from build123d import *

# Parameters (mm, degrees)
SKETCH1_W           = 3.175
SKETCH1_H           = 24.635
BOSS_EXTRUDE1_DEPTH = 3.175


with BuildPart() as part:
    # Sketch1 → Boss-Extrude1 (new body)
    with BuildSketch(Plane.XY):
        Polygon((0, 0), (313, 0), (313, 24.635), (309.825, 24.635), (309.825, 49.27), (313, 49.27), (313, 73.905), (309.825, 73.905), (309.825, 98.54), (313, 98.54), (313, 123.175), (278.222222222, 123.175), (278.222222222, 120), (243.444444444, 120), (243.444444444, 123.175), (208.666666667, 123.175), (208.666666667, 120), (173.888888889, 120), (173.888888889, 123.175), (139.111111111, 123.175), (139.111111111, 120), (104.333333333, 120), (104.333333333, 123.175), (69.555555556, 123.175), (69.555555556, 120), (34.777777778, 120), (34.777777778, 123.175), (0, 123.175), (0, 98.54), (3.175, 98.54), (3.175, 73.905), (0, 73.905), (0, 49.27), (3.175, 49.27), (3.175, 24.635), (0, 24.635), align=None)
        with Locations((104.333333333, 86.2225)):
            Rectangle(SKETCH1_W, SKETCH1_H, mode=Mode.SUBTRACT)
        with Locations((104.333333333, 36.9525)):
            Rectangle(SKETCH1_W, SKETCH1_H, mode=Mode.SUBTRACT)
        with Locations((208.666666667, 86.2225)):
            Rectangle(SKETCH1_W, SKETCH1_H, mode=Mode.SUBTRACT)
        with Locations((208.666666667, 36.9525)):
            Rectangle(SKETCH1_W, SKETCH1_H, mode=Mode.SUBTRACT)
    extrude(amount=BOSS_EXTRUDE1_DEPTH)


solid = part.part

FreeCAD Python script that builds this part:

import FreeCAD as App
import Part
import Sketcher

V = App.Vector
Q = App.Units.Quantity

doc = App.newDocument("Part")
params = doc.addObject("Spreadsheet::Sheet", "Params")
for row, (alias, value) in enumerate([
    ("sketch1_width", "313 mm"),
    ("pad1_length", "3.175 mm"),
], start=1):
    params.set(f"A{row}", alias)
    params.set(f"B{row}", "=" + value)
    params.setAlias(f"B{row}", alias)

body = doc.addObject("PartDesign::Body", "Body")

# Sketch on XY plane
sketch1 = body.newObject("Sketcher::SketchObject", "Sketch")
sketch1.AttachmentSupport = (doc.getObject("XY_Plane"), [""])
sketch1.MapMode = "FlatFace"
sketch1.addGeometry(Part.LineSegment(V(0, 0, 0), V(313, 0, 0)), False)
sketch1.addGeometry(Part.LineSegment(V(313, 0, 0), V(313, 24.6, 0)), False)
sketch1.addGeometry(Part.LineSegment(V(313, 24.6, 0), V(309.8, 24.6, 0)), False)
sketch1.addGeometry(Part.LineSegment(V(309.8, 24.6, 0), V(309.8, 49.3, 0)), False)
sketch1.addGeometry(Part.LineSegment(V(309.8, 49.3, 0), V(313, 49.3, 0)), False)
sketch1.addGeometry(Part.LineSegment(V(313, 49.3, 0), V(313, 73.9, 0)), False)
sketch1.addGeometry(Part.LineSegment(V(313, 73.9, 0), V(309.8, 73.9, 0)), False)
sketch1.addGeometry(Part.LineSegment(V(309.8, 73.9, 0), V(309.8, 98.5, 0)), False)
sketch1.addGeometry(Part.LineSegment(V(309.8, 98.5, 0), V(313, 98.5, 0)), False)
sketch1.addGeometry(Part.LineSegment(V(313, 98.5, 0), V(313, 123.2, 0)), False)
sketch1.addGeometry(Part.LineSegment(V(313, 123.2, 0), V(278.2, 123.2, 0)), False)
sketch1.addGeometry(Part.LineSegment(V(278.2, 123.2, 0), V(278.2, 120, 0)), False)
sketch1.addGeometry(Part.LineSegment(V(278.2, 120, 0), V(243.4, 120, 0)), False)
sketch1.addGeometry(Part.LineSegment(V(243.4, 120, 0), V(243.4, 123.2, 0)), False)
sketch1.addGeometry(Part.LineSegment(V(243.4, 123.2, 0), V(208.7, 123.2, 0)), False)
sketch1.addGeometry(Part.LineSegment(V(208.7, 123.2, 0), V(208.7, 120, 0)), False)
sketch1.addGeometry(Part.LineSegment(V(208.7, 120, 0), V(173.9, 120, 0)), False)
sketch1.addGeometry(Part.LineSegment(V(173.9, 120, 0), V(173.9, 123.2, 0)), False)
sketch1.addGeometry(Part.LineSegment(V(173.9, 123.2, 0), V(139.1, 123.2, 0)), False)
sketch1.addGeometry(Part.LineSegment(V(139.1, 123.2, 0), V(139.1, 120, 0)), False)
sketch1.addGeometry(Part.LineSegment(V(139.1, 120, 0), V(104.3, 120, 0)), False)
sketch1.addGeometry(Part.LineSegment(V(104.3, 120, 0), V(104.3, 123.2, 0)), False)
sketch1.addGeometry(Part.LineSegment(V(104.3, 123.2, 0), V(69.6, 123.2, 0)), False)
sketch1.addGeometry(Part.LineSegment(V(69.6, 123.2, 0), V(69.6, 120, 0)), False)
sketch1.addGeometry(Part.LineSegment(V(69.6, 120, 0), V(34.8, 120, 0)), False)
sketch1.addGeometry(Part.LineSegment(V(34.8, 120, 0), V(34.8, 123.2, 0)), False)
sketch1.addGeometry(Part.LineSegment(V(34.8, 123.2, 0), V(0, 123.2, 0)), False)
sketch1.addGeometry(Part.LineSegment(V(0, 123.2, 0), V(0, 98.5, 0)), False)
sketch1.addGeometry(Part.LineSegment(V(0, 98.5, 0), V(3.2, 98.5, 0)), False)
sketch1.addGeometry(Part.LineSegment(V(3.2, 98.5, 0), V(3.2, 73.9, 0)), False)
sketch1.addGeometry(Part.LineSegment(V(3.2, 73.9, 0), V(0, 73.9, 0)), False)
sketch1.addGeometry(Part.LineSegment(V(0, 73.9, 0), V(0, 49.3, 0)), False)
sketch1.addGeometry(Part.LineSegment(V(0, 49.3, 0), V(3.2, 49.3, 0)), False)
sketch1.addGeometry(Part.LineSegment(V(3.2, 49.3, 0), V(3.2, 24.6, 0)), False)
sketch1.addGeometry(Part.LineSegment(V(3.2, 24.6, 0), V(0, 24.6, 0)), False)
sketch1.addGeometry(Part.LineSegment(V(0, 24.6, 0), V(0, 0, 0)), False)
sketch1.addGeometry(Part.LineSegment(V(105.9, 24.6, 0), V(102.7, 24.6, 0)), False)
sketch1.addGeometry(Part.LineSegment(V(102.7, 24.6, 0), V(102.7, 49.3, 0)), False)
sketch1.addGeometry(Part.LineSegment(V(102.7, 49.3, 0), V(105.9, 49.3, 0)), False)
sketch1.addGeometry(Part.LineSegment(V(105.9, 49.3, 0), V(105.9, 24.6, 0)), False)
sketch1.addGeometry(Part.LineSegment(V(210.3, 24.6, 0), V(207.1, 24.6, 0)), False)
sketch1.addGeometry(Part.LineSegment(V(207.1, 24.6, 0), V(207.1, 49.3, 0)), False)
sketch1.addGeometry(Part.LineSegment(V(207.1, 49.3, 0), V(210.3, 49.3, 0)), False)
sketch1.addGeometry(Part.LineSegment(V(210.3, 49.3, 0), V(210.3, 24.6, 0)), False)
sketch1.addGeometry(Part.LineSegment(V(105.9, 73.9, 0), V(102.7, 73.9, 0)), False)
sketch1.addGeometry(Part.LineSegment(V(102.7, 73.9, 0), V(102.7, 98.5, 0)), False)
sketch1.addGeometry(Part.LineSegment(V(102.7, 98.5, 0), V(105.9, 98.5, 0)), False)
sketch1.addGeometry(Part.LineSegment(V(105.9, 98.5, 0), V(105.9, 73.9, 0)), False)
sketch1.addGeometry(Part.LineSegment(V(210.3, 73.9, 0), V(207.1, 73.9, 0)), False)
sketch1.addGeometry(Part.LineSegment(V(207.1, 73.9, 0), V(207.1, 98.5, 0)), False)
sketch1.addGeometry(Part.LineSegment(V(207.1, 98.5, 0), V(210.3, 98.5, 0)), False)
sketch1.addGeometry(Part.LineSegment(V(210.3, 98.5, 0), V(210.3, 73.9, 0)), False)
sketch1.addConstraint(Sketcher.Constraint("Coincident", 0, 2, 1, 1))
sketch1.addConstraint(Sketcher.Constraint("Coincident", 1, 2, 2, 1))
sketch1.addConstraint(Sketcher.Constraint("Coincident", 2, 2, 3, 1))
sketch1.addConstraint(Sketcher.Constraint("Coincident", 3, 2, 4, 1))
sketch1.addConstraint(Sketcher.Constraint("Coincident", 4, 2, 5, 1))
sketch1.addConstraint(Sketcher.Constraint("Coincident", 5, 2, 6, 1))
sketch1.addConstraint(Sketcher.Constraint("Coincident", 6, 2, 7, 1))
sketch1.addConstraint(Sketcher.Constraint("Coincident", 7, 2, 8, 1))
sketch1.addConstraint(Sketcher.Constraint("Coincident", 8, 2, 9, 1))
sketch1.addConstraint(Sketcher.Constraint("Coincident", 9, 2, 10, 1))
sketch1.addConstraint(Sketcher.Constraint("Coincident", 10, 2, 11, 1))
sketch1.addConstraint(Sketcher.Constraint("Coincident", 11, 2, 12, 1))
sketch1.addConstraint(Sketcher.Constraint("Coincident", 12, 2, 13, 1))
sketch1.addConstraint(Sketcher.Constraint("Coincident", 13, 2, 14, 1))
sketch1.addConstraint(Sketcher.Constraint("Coincident", 14, 2, 15, 1))
sketch1.addConstraint(Sketcher.Constraint("Coincident", 15, 2, 16, 1))
sketch1.addConstraint(Sketcher.Constraint("Coincident", 16, 2, 17, 1))
sketch1.addConstraint(Sketcher.Constraint("Coincident", 17, 2, 18, 1))
sketch1.addConstraint(Sketcher.Constraint("Coincident", 18, 2, 19, 1))
sketch1.addConstraint(Sketcher.Constraint("Coincident", 19, 2, 20, 1))
sketch1.addConstraint(Sketcher.Constraint("Coincident", 20, 2, 21, 1))
sketch1.addConstraint(Sketcher.Constraint("Coincident", 21, 2, 22, 1))
sketch1.addConstraint(Sketcher.Constraint("Coincident", 22, 2, 23, 1))
sketch1.addConstraint(Sketcher.Constraint("Coincident", 23, 2, 24, 1))
sketch1.addConstraint(Sketcher.Constraint("Coincident", 24, 2, 25, 1))
sketch1.addConstraint(Sketcher.Constraint("Coincident", 25, 2, 26, 1))
sketch1.addConstraint(Sketcher.Constraint("Coincident", 26, 2, 27, 1))
sketch1.addConstraint(Sketcher.Constraint("Coincident", 27, 2, 28, 1))
sketch1.addConstraint(Sketcher.Constraint("Coincident", 28, 2, 29, 1))
sketch1.addConstraint(Sketcher.Constraint("Coincident", 29, 2, 30, 1))
sketch1.addConstraint(Sketcher.Constraint("Coincident", 30, 2, 31, 1))
sketch1.addConstraint(Sketcher.Constraint("Coincident", 31, 2, 32, 1))
sketch1.addConstraint(Sketcher.Constraint("Coincident", 32, 2, 33, 1))
sketch1.addConstraint(Sketcher.Constraint("Coincident", 33, 2, 34, 1))
sketch1.addConstraint(Sketcher.Constraint("Coincident", 34, 2, 35, 1))
sketch1.addConstraint(Sketcher.Constraint("Coincident", 35, 2, 0, 1))
sketch1.addConstraint(Sketcher.Constraint("Coincident", 36, 2, 37, 1))
sketch1.addConstraint(Sketcher.Constraint("Coincident", 37, 2, 38, 1))
sketch1.addConstraint(Sketcher.Constraint("Coincident", 38, 2, 39, 1))
sketch1.addConstraint(Sketcher.Constraint("Coincident", 39, 2, 36, 1))
sketch1.addConstraint(Sketcher.Constraint("Coincident", 40, 2, 41, 1))
sketch1.addConstraint(Sketcher.Constraint("Coincident", 41, 2, 42, 1))
sketch1.addConstraint(Sketcher.Constraint("Coincident", 42, 2, 43, 1))
sketch1.addConstraint(Sketcher.Constraint("Coincident", 43, 2, 40, 1))
sketch1.addConstraint(Sketcher.Constraint("Coincident", 44, 2, 45, 1))
sketch1.addConstraint(Sketcher.Constraint("Coincident", 45, 2, 46, 1))
sketch1.addConstraint(Sketcher.Constraint("Coincident", 46, 2, 47, 1))
sketch1.addConstraint(Sketcher.Constraint("Coincident", 47, 2, 44, 1))
sketch1.addConstraint(Sketcher.Constraint("Coincident", 48, 2, 49, 1))
sketch1.addConstraint(Sketcher.Constraint("Coincident", 49, 2, 50, 1))
sketch1.addConstraint(Sketcher.Constraint("Coincident", 50, 2, 51, 1))
sketch1.addConstraint(Sketcher.Constraint("Coincident", 51, 2, 48, 1))
sketch1.addConstraint(Sketcher.Constraint("Horizontal", 0))
sketch1.addConstraint(Sketcher.Constraint("Vertical", 1))
sketch1.addConstraint(Sketcher.Constraint("Horizontal", 2))
sketch1.addConstraint(Sketcher.Constraint("Vertical", 3))
sketch1.addConstraint(Sketcher.Constraint("Horizontal", 4))
sketch1.addConstraint(Sketcher.Constraint("Vertical", 5))
sketch1.addConstraint(Sketcher.Constraint("Horizontal", 6))
sketch1.addConstraint(Sketcher.Constraint("Vertical", 7))
sketch1.addConstraint(Sketcher.Constraint("Horizontal", 8))
sketch1.addConstraint(Sketcher.Constraint("Vertical", 9))
sketch1.addConstraint(Sketcher.Constraint("Horizontal", 10))
sketch1.addConstraint(Sketcher.Constraint("Vertical", 11))
sketch1.addConstraint(Sketcher.Constraint("Horizontal", 12))
sketch1.addConstraint(Sketcher.Constraint("Vertical", 13))
sketch1.addConstraint(Sketcher.Constraint("Horizontal", 14))
sketch1.addConstraint(Sketcher.Constraint("Vertical", 15))
sketch1.addConstraint(Sketcher.Constraint("Horizontal", 16))
sketch1.addConstraint(Sketcher.Constraint("Vertical", 17))
sketch1.addConstraint(Sketcher.Constraint("Horizontal", 18))
sketch1.addConstraint(Sketcher.Constraint("Vertical", 19))
sketch1.addConstraint(Sketcher.Constraint("Horizontal", 20))
sketch1.addConstraint(Sketcher.Constraint("Vertical", 21))
sketch1.addConstraint(Sketcher.Constraint("Horizontal", 22))
sketch1.addConstraint(Sketcher.Constraint("Vertical", 23))
sketch1.addConstraint(Sketcher.Constraint("Horizontal", 24))
sketch1.addConstraint(Sketcher.Constraint("Vertical", 25))
sketch1.addConstraint(Sketcher.Constraint("Horizontal", 26))
sketch1.addConstraint(Sketcher.Constraint("Vertical", 27))
sketch1.addConstraint(Sketcher.Constraint("Horizontal", 28))
sketch1.addConstraint(Sketcher.Constraint("Vertical", 29))
sketch1.addConstraint(Sketcher.Constraint("Horizontal", 30))
sketch1.addConstraint(Sketcher.Constraint("Vertical", 31))
sketch1.addConstraint(Sketcher.Constraint("Horizontal", 32))
sketch1.addConstraint(Sketcher.Constraint("Vertical", 33))
sketch1.addConstraint(Sketcher.Constraint("Horizontal", 34))
sketch1.addConstraint(Sketcher.Constraint("Vertical", 35))
sketch1.addConstraint(Sketcher.Constraint("Horizontal", 36))
sketch1.addConstraint(Sketcher.Constraint("Vertical", 37))
sketch1.addConstraint(Sketcher.Constraint("Horizontal", 38))
sketch1.addConstraint(Sketcher.Constraint("Vertical", 39))
sketch1.addConstraint(Sketcher.Constraint("Horizontal", 40))
sketch1.addConstraint(Sketcher.Constraint("Vertical", 41))
sketch1.addConstraint(Sketcher.Constraint("Horizontal", 42))
sketch1.addConstraint(Sketcher.Constraint("Vertical", 43))
sketch1.addConstraint(Sketcher.Constraint("Horizontal", 44))
sketch1.addConstraint(Sketcher.Constraint("Vertical", 45))
sketch1.addConstraint(Sketcher.Constraint("Horizontal", 46))
sketch1.addConstraint(Sketcher.Constraint("Vertical", 47))
sketch1.addConstraint(Sketcher.Constraint("Horizontal", 48))
sketch1.addConstraint(Sketcher.Constraint("Vertical", 49))
sketch1.addConstraint(Sketcher.Constraint("Horizontal", 50))
sketch1.addConstraint(Sketcher.Constraint("Vertical", 51))
sketch1.addConstraint(Sketcher.Constraint("Coincident", 35, 2, -1, 1))
sketch1.addConstraint(Sketcher.Constraint("PointOnObject", 26, 2, -2))
sketch1.addConstraint(Sketcher.Constraint("PointOnObject", 30, 2, -2))
sketch1.addConstraint(Sketcher.Constraint("Horizontal", 10, 2, 13, 2))
sketch1.addConstraint(Sketcher.Constraint("Horizontal", 12, 2, 15, 2))
sketch1.addConstraint(Sketcher.Constraint("Horizontal", 14, 2, 17, 2))
sketch1.addConstraint(Sketcher.Constraint("Horizontal", 16, 2, 19, 2))
sketch1.addConstraint(Sketcher.Constraint("Horizontal", 18, 2, 21, 2))
sketch1.addConstraint(Sketcher.Constraint("Horizontal", 20, 2, 23, 2))
sketch1.addConstraint(Sketcher.Constraint("Horizontal", 22, 2, 25, 2))
sketch1.addConstraint(Sketcher.Constraint("Horizontal", 8, 2, 27, 2))
sketch1.addConstraint(Sketcher.Constraint("Horizontal", 6, 2, 29, 2))
sketch1.addConstraint(Sketcher.Constraint("Horizontal", 4, 2, 31, 2))
sketch1.addConstraint(Sketcher.Constraint("Horizontal", 2, 2, 33, 2))
sketch1.addConstraint(Sketcher.Constraint("Horizontal", 34, 2, 36, 2))
sketch1.addConstraint(Sketcher.Constraint("Horizontal", 32, 2, 37, 2))
sketch1.addConstraint(Sketcher.Constraint("Horizontal", 39, 2, 40, 2))
sketch1.addConstraint(Sketcher.Constraint("Horizontal", 38, 2, 41, 2))
sketch1.addConstraint(Sketcher.Constraint("Horizontal", 30, 2, 44, 2))
sketch1.addConstraint(Sketcher.Constraint("Horizontal", 28, 2, 45, 2))
sketch1.addConstraint(Sketcher.Constraint("Horizontal", 47, 2, 48, 2))
sketch1.addConstraint(Sketcher.Constraint("Horizontal", 46, 2, 49, 2))
sketch1.addConstraint(Sketcher.Constraint("Vertical", 1, 2, 4, 2))
sketch1.addConstraint(Sketcher.Constraint("Vertical", 3, 2, 6, 2))
sketch1.addConstraint(Sketcher.Constraint("Vertical", 5, 2, 8, 2))
sketch1.addConstraint(Sketcher.Constraint("Vertical", 29, 2, 32, 2))
sketch1.addConstraint(Sketcher.Constraint("Vertical", 37, 2, 44, 2))
sketch1.addConstraint(Sketcher.Constraint("Vertical", 39, 2, 46, 2))
sketch1.addConstraint(Sketcher.Constraint("Vertical", 41, 2, 48, 2))
sketch1.addConstraint(Sketcher.Constraint("Vertical", 43, 2, 50, 2))
sketch1.addConstraint(Sketcher.Constraint("Equal", 10, 12))
sketch1.addConstraint(Sketcher.Constraint("Equal", 12, 14))
sketch1.addConstraint(Sketcher.Constraint("Equal", 14, 16))
sketch1.addConstraint(Sketcher.Constraint("Equal", 16, 18))
sketch1.addConstraint(Sketcher.Constraint("Equal", 18, 20))
sketch1.addConstraint(Sketcher.Constraint("Equal", 20, 22))
sketch1.addConstraint(Sketcher.Constraint("Equal", 22, 24))
sketch1.addConstraint(Sketcher.Constraint("Equal", 24, 26))
sketch1.addConstraint(Sketcher.Constraint("Equal", 8, 28))
sketch1.addConstraint(Sketcher.Constraint("Equal", 34, 36))
sketch1.addConstraint(Sketcher.Constraint("Equal", 38, 40))
sketch1.addConstraint(Sketcher.Constraint("Equal", 1, 3))
sketch1.addConstraint(Sketcher.Constraint("Equal", 3, 5))
sketch1.addConstraint(Sketcher.Constraint("Equal", 5, 7))
sketch1.addConstraint(Sketcher.Constraint("Equal", 7, 9))
sketch1.addConstraint(Sketcher.Constraint("Equal", 50, 11))
sketch1.addConstraint(Sketcher.Constraint("DistanceX", 0, 1, 0, 2, Q("313 mm")))
sketch1.addConstraint(Sketcher.Constraint("DistanceY", -1, 1, 11, 2, Q("120 mm")))
sketch1.addConstraint(Sketcher.Constraint("DistanceX", 2, 2, 2, 1, Q("3.175 mm")))
sketch1.addConstraint(Sketcher.Constraint("DistanceX", 36, 2, 20, 2, Q("1.5875 mm")))
sketch1.addConstraint(Sketcher.Constraint("DistanceX", 40, 2, 15, 2, Q("1.5875 mm")))
sketch1.setExpression("Constraints[150]", "Params.sketch1_width")
pad1 = body.newObject("PartDesign::Pad", "Pad")
pad1.Profile = sketch1
pad1.setExpression("Length", "Params.pad1_length")

doc.recompute()
